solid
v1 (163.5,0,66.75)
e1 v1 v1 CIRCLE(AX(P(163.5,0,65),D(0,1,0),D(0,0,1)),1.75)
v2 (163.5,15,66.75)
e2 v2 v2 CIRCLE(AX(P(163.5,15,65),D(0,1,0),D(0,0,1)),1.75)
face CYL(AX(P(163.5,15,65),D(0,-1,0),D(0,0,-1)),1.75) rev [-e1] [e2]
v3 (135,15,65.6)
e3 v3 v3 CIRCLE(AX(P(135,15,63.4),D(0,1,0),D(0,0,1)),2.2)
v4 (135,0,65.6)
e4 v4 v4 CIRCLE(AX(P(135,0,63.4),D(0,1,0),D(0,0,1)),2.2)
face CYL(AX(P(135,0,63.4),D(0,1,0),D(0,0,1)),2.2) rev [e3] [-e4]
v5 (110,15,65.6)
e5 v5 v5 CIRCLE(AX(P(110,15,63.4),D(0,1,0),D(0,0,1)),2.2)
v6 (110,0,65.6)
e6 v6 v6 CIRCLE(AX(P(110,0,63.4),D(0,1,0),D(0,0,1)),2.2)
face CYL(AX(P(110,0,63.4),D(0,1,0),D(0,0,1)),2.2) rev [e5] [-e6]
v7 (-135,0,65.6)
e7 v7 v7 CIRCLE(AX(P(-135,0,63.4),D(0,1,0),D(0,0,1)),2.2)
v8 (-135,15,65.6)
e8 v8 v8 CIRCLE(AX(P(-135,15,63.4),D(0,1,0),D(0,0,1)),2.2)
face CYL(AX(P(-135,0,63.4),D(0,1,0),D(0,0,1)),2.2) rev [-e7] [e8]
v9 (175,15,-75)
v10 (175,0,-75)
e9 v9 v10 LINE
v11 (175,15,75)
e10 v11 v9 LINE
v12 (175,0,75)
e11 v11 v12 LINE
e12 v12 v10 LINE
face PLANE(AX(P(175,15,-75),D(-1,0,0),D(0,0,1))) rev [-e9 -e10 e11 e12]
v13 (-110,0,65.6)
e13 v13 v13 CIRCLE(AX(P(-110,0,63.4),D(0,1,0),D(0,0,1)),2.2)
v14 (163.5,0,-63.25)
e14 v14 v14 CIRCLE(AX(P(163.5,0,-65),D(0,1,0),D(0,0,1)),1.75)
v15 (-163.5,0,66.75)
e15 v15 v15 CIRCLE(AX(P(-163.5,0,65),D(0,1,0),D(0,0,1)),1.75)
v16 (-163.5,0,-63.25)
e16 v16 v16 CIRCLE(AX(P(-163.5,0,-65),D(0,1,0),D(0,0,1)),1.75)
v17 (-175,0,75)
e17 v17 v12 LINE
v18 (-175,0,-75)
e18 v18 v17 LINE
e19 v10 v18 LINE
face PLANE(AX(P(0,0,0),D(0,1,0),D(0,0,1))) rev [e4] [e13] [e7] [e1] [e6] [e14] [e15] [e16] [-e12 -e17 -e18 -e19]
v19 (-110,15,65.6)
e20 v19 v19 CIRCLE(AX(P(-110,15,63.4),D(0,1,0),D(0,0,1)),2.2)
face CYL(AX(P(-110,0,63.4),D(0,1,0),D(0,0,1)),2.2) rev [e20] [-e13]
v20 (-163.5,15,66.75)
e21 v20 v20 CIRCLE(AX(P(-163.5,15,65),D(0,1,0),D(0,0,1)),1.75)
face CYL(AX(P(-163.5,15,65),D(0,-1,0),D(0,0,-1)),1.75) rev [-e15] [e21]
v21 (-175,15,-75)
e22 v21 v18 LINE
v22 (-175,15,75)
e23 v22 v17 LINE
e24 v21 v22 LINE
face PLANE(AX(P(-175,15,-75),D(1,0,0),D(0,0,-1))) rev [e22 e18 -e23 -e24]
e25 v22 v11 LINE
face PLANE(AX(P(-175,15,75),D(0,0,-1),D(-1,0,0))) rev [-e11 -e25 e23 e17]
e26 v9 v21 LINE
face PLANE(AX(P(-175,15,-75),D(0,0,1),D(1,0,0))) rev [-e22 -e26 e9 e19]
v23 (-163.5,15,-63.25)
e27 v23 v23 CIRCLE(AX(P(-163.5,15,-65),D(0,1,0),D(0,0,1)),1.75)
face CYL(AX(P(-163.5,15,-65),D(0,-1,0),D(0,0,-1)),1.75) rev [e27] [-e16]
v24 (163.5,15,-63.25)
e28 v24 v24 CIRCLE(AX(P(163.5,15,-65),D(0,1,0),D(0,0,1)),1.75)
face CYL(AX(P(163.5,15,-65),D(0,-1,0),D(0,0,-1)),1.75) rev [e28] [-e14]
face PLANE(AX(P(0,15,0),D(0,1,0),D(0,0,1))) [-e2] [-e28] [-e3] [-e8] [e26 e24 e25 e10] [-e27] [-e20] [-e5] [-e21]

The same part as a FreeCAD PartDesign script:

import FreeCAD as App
import Part
import Sketcher

V = App.Vector


def add_polygon(sketch, points):
    """Adds a closed chain of lines whose ends are joined by coincident constraints."""
    first, n = sketch.GeometryCount, len(points)
    for a, b in zip(points, points[1:] + points[:1]):
        sketch.addGeometry(Part.LineSegment(App.Vector(*a, 0), App.Vector(*b, 0)), False)
    for i in range(n):
        sketch.addConstraint(Sketcher.Constraint("Coincident", first + i, 2, first + (i + 1) % n, 1))

doc = App.newDocument("Part")
body = doc.addObject("PartDesign::Body", "Body")

sketch1 = body.newObject("Sketcher::SketchObject", "Sketch")
sketch1.AttachmentSupport = (doc.getObject("XZ_Plane"), [""])
sketch1.MapMode = "FlatFace"
add_polygon(sketch1, [(-175, -75), (-175, 75), (175, 75), (175, -75)])
sketch1.addGeometry(Part.Circle(V(-163.5, 65, 0), V(0, 0, 1), 1.75), False)
sketch1.addGeometry(Part.Circle(V(163.5, 65, 0), V(0, 0, 1), 1.75), False)
sketch1.addGeometry(Part.Circle(V(-163.5, -65, 0), V(0, 0, 1), 1.75), False)
sketch1.addGeometry(Part.Circle(V(163.5, -65, 0), V(0, 0, 1), 1.75), False)
sketch1.addConstraint([
    Sketcher.Constraint("Vertical", 0),
    Sketcher.Constraint("Horizontal", 1),
    Sketcher.Constraint("Vertical", 2),
    Sketcher.Constraint("Horizontal", 3),
    Sketcher.Constraint("Equal", 4, 5),
    Sketcher.Constraint("Equal", 5, 6),
    Sketcher.Constraint("Equal", 6, 7),
    Sketcher.Constraint("Symmetric", 5, 3, 6, 3, -1, 1),
    Sketcher.Constraint("Symmetric", 4, 3, 7, 3, -1, 1),
    Sketcher.Constraint("Symmetric", 0, 2, 2, 2, -1, 1),
    Sketcher.Constraint("Symmetric", 4, 3, 5, 3, -2),
    Sketcher.Constraint("Diameter", 4, 3.5),
    Sketcher.Constraint("DistanceX", 1, 1, 1, 2, 350.0),
    Sketcher.Constraint("DistanceY", 0, 1, 0, 2, 150.0),
    Sketcher.Constraint("DistanceY", -1, 1, 4, 3, 65.0),
    Sketcher.Constraint("DistanceX", 4, 3, 5, 3, 327.0),
])
pad1 = body.newObject("PartDesign::Pad", "Pad")
pad1.Profile = sketch1
pad1.Length = 15
pad1.Reversed = True

sketch2 = body.newObject("Sketcher::SketchObject", "Sketch001")
sketch2.AttachmentSupport = (doc.getObject("XZ_Plane"), [""])
sketch2.MapMode = "FlatFace"
sketch2.AttachmentOffset = App.Placement(V(0, 0, -15), App.Rotation())
sketch2.addGeometry([
    Part.Circle(V(-135, 63.4, 0), V(0, 0, 1), 2.2),
    Part.Circle(V(-110, 63.4, 0), V(0, 0, 1), 2.2),
    Part.Circle(V(135, 63.4, 0), V(0, 0, 1), 2.2),
    Part.Circle(V(110, 63.4, 0), V(0, 0, 1), 2.2),
], False)
sketch2.addConstraint([
    Sketcher.Constraint("Equal", 0, 1),
    Sketcher.Constraint("Equal", 1, 2),
    Sketcher.Constraint("Equal", 2, 3),
    Sketcher.Constraint("Symmetric", 0, 3, 2, 3, -2),
    Sketcher.Constraint("Symmetric", 1, 3, 3, 3, -2),
    Sketcher.Constraint("Horizontal", 0, 3, 1, 3),
    Sketcher.Constraint("Diameter", 0, 4.4),
    Sketcher.Constraint("DistanceX", 0, 3, -1, 1, 135.0),
    Sketcher.Constraint("DistanceX", 1, 3, -1, 1, 110.0),
    Sketcher.Constraint("DistanceY", -1, 1, 0, 3, 63.4),
])
pocket1 = body.newObject("PartDesign::Pocket", "Pocket")
pocket1.Profile = sketch2
pocket1.Type = "ThroughAll"
pocket1.Reversed = True

doc.recompute()
